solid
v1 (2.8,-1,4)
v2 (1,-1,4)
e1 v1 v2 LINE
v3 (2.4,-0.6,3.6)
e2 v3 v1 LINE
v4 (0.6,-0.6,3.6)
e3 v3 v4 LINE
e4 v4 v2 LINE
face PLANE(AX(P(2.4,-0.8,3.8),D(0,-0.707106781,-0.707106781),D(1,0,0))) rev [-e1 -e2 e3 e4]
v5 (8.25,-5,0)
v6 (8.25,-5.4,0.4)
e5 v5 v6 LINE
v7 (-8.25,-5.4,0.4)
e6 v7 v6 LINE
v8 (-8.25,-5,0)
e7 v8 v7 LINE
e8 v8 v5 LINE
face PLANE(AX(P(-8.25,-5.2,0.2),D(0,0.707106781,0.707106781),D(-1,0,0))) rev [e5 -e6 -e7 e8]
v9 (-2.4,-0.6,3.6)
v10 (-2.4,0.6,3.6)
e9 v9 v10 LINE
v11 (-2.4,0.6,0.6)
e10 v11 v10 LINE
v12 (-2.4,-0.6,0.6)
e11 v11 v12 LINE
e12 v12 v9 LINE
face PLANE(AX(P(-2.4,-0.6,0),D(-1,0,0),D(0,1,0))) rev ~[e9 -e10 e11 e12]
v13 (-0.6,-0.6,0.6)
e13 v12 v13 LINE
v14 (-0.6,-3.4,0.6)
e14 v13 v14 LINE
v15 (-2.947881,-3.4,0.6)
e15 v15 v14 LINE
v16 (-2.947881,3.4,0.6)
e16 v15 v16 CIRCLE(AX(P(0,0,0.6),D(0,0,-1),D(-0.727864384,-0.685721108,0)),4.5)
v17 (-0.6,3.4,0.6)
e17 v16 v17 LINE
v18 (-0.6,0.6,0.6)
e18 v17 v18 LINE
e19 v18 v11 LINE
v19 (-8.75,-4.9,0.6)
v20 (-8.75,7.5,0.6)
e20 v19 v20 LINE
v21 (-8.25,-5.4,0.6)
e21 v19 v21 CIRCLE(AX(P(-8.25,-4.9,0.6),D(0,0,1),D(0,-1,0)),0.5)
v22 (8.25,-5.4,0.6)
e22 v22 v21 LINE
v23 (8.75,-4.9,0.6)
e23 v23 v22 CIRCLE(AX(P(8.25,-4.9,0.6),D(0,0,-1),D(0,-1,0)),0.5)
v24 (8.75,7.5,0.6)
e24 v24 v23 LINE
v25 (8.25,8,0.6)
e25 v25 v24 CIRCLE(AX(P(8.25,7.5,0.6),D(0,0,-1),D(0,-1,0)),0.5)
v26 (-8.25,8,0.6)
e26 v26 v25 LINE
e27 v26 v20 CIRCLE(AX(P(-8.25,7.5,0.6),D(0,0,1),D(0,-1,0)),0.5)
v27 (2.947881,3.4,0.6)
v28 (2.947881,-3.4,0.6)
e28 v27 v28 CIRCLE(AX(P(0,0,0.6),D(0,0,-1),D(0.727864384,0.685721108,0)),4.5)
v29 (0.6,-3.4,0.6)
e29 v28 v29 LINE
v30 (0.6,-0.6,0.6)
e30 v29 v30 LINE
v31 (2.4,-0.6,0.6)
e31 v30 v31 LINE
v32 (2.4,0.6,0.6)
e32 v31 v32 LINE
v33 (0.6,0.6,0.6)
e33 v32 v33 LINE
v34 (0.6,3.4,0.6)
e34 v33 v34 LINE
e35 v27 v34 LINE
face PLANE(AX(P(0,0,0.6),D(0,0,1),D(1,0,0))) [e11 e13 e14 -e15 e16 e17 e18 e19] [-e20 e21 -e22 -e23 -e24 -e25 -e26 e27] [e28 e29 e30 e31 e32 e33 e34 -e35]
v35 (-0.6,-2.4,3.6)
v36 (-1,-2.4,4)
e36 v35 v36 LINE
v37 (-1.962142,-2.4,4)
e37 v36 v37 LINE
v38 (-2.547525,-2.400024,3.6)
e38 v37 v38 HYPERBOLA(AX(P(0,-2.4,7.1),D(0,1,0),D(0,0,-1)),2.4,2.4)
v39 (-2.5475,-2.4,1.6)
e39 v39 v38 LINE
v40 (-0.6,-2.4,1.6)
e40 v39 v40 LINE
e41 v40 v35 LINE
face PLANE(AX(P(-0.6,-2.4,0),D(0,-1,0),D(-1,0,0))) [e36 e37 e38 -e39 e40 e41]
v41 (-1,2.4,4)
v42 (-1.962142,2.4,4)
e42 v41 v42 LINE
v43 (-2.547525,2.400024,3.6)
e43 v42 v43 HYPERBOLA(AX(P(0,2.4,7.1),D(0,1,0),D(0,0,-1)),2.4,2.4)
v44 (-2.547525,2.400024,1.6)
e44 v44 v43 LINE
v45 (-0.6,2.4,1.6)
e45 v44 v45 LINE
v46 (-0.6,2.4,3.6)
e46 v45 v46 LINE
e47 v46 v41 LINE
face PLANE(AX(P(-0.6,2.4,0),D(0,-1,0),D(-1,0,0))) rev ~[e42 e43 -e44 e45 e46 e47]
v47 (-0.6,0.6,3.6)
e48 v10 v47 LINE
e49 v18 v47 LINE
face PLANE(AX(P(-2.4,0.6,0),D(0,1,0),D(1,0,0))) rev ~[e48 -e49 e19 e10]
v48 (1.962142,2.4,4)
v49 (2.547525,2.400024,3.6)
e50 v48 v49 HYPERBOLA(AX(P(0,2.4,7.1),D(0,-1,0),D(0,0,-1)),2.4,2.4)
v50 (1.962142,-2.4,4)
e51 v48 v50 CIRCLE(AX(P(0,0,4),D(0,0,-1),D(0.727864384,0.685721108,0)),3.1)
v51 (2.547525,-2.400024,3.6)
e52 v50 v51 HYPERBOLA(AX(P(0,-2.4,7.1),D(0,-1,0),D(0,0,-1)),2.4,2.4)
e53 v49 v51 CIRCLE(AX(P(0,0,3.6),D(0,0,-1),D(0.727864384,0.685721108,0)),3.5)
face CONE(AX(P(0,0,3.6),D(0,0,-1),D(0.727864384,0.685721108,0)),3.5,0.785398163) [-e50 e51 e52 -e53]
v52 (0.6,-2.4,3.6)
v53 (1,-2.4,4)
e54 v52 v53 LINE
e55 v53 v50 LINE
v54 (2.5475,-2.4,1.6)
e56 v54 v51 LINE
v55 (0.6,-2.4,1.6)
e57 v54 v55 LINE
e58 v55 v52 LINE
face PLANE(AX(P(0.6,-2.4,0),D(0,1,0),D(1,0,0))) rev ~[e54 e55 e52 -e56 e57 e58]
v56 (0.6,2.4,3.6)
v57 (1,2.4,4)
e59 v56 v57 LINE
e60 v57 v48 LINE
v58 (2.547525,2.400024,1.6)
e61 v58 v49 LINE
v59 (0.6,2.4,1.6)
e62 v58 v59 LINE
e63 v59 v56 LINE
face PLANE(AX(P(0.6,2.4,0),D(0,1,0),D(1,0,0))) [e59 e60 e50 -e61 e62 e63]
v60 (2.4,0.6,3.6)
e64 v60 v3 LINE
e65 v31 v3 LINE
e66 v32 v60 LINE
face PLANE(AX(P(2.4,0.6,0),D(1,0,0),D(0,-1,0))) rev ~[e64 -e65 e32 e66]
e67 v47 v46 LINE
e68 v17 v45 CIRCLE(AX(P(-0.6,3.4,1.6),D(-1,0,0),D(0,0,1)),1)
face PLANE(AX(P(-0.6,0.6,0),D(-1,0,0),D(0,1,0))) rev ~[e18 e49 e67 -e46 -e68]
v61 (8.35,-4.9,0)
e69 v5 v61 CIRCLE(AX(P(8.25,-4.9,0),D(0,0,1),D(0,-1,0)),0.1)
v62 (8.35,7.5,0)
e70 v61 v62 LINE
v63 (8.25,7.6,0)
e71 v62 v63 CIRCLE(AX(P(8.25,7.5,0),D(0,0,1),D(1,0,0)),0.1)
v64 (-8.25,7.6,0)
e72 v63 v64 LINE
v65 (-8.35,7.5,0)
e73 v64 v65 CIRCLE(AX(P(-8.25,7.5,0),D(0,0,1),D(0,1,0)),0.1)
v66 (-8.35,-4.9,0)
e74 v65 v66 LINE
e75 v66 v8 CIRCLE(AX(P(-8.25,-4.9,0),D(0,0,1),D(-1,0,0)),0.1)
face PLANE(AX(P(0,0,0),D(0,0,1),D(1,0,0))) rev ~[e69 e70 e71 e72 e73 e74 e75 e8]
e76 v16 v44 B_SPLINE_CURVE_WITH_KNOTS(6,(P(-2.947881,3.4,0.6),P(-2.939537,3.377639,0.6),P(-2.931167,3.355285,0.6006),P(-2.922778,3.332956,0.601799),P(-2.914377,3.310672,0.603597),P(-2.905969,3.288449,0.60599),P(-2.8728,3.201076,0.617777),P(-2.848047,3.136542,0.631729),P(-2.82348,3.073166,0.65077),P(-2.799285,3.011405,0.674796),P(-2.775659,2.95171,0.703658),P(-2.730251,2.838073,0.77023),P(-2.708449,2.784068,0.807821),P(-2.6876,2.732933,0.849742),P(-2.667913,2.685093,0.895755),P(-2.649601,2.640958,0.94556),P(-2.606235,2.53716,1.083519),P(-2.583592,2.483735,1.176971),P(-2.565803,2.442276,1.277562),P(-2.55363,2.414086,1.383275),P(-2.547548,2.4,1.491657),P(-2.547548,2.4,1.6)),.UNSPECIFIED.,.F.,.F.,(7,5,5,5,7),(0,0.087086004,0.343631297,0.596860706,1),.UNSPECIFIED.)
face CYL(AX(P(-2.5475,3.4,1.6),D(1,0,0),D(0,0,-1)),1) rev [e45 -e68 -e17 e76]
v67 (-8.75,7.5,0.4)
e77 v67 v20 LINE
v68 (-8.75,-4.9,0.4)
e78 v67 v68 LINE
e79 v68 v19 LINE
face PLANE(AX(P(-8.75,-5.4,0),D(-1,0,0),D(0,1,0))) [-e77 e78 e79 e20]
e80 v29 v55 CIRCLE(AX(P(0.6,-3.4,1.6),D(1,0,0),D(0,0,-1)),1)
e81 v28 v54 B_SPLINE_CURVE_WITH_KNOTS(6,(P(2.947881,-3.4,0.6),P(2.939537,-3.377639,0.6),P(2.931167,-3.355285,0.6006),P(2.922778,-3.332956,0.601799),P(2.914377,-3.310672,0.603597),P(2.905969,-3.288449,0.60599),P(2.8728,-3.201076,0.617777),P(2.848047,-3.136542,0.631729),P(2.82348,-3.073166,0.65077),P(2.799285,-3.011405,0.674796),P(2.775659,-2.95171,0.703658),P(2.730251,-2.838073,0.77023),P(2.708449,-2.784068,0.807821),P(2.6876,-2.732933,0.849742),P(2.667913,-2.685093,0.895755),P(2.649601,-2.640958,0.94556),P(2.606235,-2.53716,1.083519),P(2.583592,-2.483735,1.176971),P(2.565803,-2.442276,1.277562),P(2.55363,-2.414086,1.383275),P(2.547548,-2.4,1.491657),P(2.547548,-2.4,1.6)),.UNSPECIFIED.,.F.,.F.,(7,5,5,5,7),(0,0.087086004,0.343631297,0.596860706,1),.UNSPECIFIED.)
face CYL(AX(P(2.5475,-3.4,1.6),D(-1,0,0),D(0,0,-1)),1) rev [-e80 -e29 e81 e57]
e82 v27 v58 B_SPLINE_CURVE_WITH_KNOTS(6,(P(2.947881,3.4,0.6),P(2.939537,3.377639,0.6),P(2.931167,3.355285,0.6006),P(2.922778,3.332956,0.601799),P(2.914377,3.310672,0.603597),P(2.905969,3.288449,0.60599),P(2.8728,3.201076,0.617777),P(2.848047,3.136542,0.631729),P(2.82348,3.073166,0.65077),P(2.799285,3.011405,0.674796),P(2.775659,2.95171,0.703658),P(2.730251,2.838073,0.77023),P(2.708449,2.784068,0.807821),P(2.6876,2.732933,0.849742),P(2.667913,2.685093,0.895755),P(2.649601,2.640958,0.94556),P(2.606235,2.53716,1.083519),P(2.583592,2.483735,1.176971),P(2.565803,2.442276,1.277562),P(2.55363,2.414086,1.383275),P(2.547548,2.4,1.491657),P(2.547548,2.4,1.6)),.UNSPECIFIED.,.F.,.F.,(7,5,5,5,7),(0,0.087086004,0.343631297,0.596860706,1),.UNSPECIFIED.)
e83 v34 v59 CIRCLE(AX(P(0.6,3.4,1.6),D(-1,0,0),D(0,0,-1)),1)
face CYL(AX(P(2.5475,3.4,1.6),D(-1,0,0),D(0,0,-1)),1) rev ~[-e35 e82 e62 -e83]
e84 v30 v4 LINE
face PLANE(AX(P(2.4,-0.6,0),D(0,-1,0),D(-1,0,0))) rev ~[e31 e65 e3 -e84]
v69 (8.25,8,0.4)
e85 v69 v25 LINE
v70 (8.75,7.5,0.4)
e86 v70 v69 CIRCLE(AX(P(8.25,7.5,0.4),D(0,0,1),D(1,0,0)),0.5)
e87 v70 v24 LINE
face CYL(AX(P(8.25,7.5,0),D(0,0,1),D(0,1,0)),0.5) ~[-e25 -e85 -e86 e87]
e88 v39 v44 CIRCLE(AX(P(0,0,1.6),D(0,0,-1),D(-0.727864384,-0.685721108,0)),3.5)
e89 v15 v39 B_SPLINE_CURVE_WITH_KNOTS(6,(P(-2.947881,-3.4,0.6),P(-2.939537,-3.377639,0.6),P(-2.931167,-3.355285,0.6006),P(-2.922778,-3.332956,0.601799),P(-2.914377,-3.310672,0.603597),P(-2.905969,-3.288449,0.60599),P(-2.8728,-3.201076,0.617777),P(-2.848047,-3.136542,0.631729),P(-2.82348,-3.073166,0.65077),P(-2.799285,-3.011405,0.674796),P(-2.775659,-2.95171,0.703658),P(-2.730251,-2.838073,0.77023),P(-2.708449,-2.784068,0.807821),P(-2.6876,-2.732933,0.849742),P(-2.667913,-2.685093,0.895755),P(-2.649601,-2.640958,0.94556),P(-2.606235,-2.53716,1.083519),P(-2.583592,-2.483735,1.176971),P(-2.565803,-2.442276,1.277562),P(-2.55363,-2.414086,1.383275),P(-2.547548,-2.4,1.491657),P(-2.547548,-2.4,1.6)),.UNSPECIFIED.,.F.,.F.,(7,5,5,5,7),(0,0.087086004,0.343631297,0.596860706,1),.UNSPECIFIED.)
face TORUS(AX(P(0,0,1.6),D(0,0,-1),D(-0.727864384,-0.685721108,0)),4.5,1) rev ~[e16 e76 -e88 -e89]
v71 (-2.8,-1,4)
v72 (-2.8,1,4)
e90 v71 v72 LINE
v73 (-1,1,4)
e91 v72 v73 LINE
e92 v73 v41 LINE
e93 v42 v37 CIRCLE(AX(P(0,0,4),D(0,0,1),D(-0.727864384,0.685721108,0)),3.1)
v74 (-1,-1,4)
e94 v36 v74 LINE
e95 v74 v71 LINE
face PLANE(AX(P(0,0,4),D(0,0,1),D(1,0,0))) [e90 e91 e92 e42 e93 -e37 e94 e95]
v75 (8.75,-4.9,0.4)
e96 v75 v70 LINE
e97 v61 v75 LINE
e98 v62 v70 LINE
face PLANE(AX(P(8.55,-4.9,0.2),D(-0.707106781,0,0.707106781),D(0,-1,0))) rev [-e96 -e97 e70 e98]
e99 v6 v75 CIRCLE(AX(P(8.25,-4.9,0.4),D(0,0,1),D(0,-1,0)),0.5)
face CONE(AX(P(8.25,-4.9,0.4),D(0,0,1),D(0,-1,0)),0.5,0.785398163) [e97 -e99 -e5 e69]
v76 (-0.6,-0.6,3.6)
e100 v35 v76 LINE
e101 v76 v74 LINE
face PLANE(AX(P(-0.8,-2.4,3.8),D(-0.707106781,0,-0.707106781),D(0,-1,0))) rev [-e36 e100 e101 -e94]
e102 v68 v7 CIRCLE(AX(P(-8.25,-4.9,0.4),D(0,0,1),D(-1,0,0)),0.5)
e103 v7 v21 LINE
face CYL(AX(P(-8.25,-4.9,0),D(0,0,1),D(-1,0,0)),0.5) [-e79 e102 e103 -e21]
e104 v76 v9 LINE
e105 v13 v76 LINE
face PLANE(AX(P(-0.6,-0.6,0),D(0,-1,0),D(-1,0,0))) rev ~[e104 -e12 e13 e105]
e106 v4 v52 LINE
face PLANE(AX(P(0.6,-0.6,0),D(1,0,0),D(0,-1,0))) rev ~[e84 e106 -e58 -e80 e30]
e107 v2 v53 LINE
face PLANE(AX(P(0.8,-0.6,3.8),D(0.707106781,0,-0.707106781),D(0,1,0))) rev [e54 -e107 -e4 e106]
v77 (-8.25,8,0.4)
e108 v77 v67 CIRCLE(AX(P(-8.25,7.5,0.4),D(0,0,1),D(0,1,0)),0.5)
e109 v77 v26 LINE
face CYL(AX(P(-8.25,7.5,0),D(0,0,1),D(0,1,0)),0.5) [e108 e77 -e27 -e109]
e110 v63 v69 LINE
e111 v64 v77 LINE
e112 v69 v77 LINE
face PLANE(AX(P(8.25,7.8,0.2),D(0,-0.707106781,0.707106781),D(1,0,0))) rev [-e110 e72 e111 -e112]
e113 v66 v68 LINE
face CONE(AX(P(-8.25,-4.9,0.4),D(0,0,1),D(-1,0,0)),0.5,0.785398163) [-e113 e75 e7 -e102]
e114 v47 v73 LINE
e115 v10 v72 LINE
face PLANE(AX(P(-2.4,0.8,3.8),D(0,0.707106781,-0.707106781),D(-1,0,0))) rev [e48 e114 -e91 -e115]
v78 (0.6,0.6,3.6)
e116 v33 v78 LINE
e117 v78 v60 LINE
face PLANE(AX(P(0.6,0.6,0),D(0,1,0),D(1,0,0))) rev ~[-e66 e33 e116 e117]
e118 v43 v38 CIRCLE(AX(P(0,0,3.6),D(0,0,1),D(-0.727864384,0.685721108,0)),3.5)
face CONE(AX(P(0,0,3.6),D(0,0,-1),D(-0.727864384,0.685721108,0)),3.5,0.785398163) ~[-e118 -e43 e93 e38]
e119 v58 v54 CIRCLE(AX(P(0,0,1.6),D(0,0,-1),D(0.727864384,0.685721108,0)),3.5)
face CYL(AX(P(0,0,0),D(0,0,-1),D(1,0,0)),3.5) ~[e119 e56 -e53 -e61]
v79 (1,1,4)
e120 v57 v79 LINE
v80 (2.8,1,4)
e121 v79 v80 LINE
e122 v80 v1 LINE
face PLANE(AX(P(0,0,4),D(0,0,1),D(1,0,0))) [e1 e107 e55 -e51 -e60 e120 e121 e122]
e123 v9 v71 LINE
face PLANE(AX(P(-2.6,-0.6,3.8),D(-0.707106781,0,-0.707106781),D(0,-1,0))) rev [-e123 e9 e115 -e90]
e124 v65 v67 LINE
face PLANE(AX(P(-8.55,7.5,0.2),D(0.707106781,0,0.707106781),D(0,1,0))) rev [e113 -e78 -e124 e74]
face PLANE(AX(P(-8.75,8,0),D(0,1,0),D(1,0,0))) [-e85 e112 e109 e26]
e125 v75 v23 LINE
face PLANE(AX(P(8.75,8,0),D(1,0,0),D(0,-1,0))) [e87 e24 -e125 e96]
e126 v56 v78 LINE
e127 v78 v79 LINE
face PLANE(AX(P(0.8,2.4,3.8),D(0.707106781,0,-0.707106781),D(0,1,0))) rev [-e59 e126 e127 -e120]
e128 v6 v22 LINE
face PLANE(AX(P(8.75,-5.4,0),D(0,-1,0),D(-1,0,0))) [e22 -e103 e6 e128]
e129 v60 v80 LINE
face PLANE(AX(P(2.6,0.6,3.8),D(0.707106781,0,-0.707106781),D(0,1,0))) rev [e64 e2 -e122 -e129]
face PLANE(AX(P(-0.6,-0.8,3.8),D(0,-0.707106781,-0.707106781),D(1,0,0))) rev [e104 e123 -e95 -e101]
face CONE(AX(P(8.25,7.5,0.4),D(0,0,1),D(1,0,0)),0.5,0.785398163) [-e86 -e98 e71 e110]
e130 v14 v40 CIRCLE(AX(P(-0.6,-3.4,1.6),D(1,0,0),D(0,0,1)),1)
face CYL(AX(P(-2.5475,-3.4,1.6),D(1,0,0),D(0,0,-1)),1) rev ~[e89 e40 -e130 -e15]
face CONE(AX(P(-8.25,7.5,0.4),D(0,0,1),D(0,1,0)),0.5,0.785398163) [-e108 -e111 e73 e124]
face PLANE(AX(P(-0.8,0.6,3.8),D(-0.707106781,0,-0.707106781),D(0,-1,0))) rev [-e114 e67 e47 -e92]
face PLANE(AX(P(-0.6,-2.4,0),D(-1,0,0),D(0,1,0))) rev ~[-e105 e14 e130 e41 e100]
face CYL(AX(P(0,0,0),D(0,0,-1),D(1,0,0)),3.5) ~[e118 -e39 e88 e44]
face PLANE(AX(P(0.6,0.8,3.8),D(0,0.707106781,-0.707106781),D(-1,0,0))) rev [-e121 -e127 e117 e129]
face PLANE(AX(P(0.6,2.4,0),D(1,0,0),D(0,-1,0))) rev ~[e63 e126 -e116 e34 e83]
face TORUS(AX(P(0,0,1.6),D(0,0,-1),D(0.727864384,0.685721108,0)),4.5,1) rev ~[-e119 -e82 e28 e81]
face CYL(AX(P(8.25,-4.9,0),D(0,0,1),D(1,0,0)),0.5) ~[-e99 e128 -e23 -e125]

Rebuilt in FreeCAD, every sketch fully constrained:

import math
import FreeCAD as App
import Part
import Sketcher
Q = App.Units.Quantity


def edges_at(feature, points):
    """Names of the edges that pass closest to the given points."""
    edges = feature.Shape.Edges
    near = lambda p: min(range(len(edges)), key=lambda i: edges[i].distToShape(Part.Vertex(*p))[0])
    return sorted({f"Edge{near(p) + 1}" for p in points})

doc = App.newDocument("Part")
body = doc.addObject("PartDesign::Body", "Body")

# Sketch on XY plane
sketch1 = body.newObject("Sketcher::SketchObject", "Sketch")
sketch1.AttachmentSupport = (doc.getObject("XY_Plane"), [""])
sketch1.MapMode = "FlatFace"
sketch1.addGeometry(Part.LineSegment(App.Vector(8.75, 8, 0), App.Vector(-8.75, 8, 0)), False)
sketch1.addGeometry(Part.LineSegment(App.Vector(-8.75, 8, 0), App.Vector(-8.75, -5.4, 0)), False)
sketch1.addGeometry(Part.LineSegment(App.Vector(-8.75, -5.4, 0), App.Vector(8.75, -5.4, 0)), False)
sketch1.addGeometry(Part.LineSegment(App.Vector(8.75, -5.4, 0), App.Vector(8.75, 8, 0)), False)
sketch1.addConstraint(Sketcher.Constraint("Coincident", 0, 2, 1, 1))
sketch1.addConstraint(Sketcher.Constraint("Coincident", 1, 2, 2, 1))
sketch1.addConstraint(Sketcher.Constraint("Coincident", 2, 2, 3, 1))
sketch1.addConstraint(Sketcher.Constraint("Coincident", 3, 2, 0, 1))
sketch1.addConstraint(Sketcher.Constraint("Horizontal", 0))
sketch1.addConstraint(Sketcher.Constraint("Vertical", 1))
sketch1.addConstraint(Sketcher.Constraint("Horizontal", 2))
sketch1.addConstraint(Sketcher.Constraint("Vertical", 3))
sketch1.addConstraint(Sketcher.Constraint("DistanceX", 0, 2, 0, 1, Q("17.5 mm")))
sketch1.addConstraint(Sketcher.Constraint("DistanceY", 1, 2, 1, 1, Q("13.4 mm")))
sketch1.addConstraint(Sketcher.Constraint("DistanceY", -1, 1, 0, 2, Q("8 mm")))
sketch1.addConstraint(Sketcher.Constraint("DistanceX", 0, 2, -1, 1, Q("8.75 mm")))
pad1 = body.newObject("PartDesign::Pad", "Pad")
pad1.Profile = sketch1
pad1.Length = 0.6

# Sketch on XY plane
sketch2 = body.newObject("Sketcher::SketchObject", "Sketch001")
sketch2.AttachmentSupport = (doc.getObject("XY_Plane"), [""])
sketch2.MapMode = "FlatFace"
sketch2.addGeometry(Part.ArcOfCircle(Part.Circle(App.Vector(0, 0, 0), App.Vector(0, 0, 1), 3.5), math.radians(-43.292345), math.radians(43.292345)), False)
sketch2.addGeometry(Part.LineSegment(App.Vector(2.5475, 2.4, 0), App.Vector(0.6, 2.4, 0)), False)
sketch2.addGeometry(Part.LineSegment(App.Vector(0.6, 2.4, 0), App.Vector(0.6, 0.6, 0)), False)
sketch2.addGeometry(Part.LineSegment(App.Vector(0.6, 0.6, 0), App.Vector(2.4, 0.6, 0)), False)
sketch2.addGeometry(Part.LineSegment(App.Vector(2.4, 0.6, 0), App.Vector(2.4, -0.6, 0)), False)
sketch2.addGeometry(Part.LineSegment(App.Vector(2.4, -0.6, 0), App.Vector(0.6, -0.6, 0)), False)
sketch2.addGeometry(Part.LineSegment(App.Vector(0.6, -0.6, 0), App.Vector(0.6, -2.4, 0)), False)
sketch2.addGeometry(Part.LineSegment(App.Vector(0.6, -2.4, 0), App.Vector(2.5475, -2.4, 0)), False)
sketch2.addGeometry(Part.LineSegment(App.Vector(-0.6, 2.4, 0), App.Vector(-2.5475, 2.4, 0)), False)
sketch2.addGeometry(Part.ArcOfCircle(Part.Circle(App.Vector(0, 0, 0), App.Vector(0, 0, 1), 3.5), math.radians(136.707655), math.radians(223.292345)), False)
sketch2.addGeometry(Part.LineSegment(App.Vector(-2.5475, -2.4, 0), App.Vector(-0.6, -2.4, 0)), False)
sketch2.addGeometry(Part.LineSegment(App.Vector(-0.6, -2.4, 0), App.Vector(-0.6, -0.6, 0)), False)
sketch2.addGeometry(Part.LineSegment(App.Vector(-0.6, -0.6, 0), App.Vector(-2.4, -0.6, 0)), False)
sketch2.addGeometry(Part.LineSegment(App.Vector(-2.4, -0.6, 0), App.Vector(-2.4, 0.6, 0)), False)
sketch2.addGeometry(Part.LineSegment(App.Vector(-2.4, 0.6, 0), App.Vector(-0.6, 0.6, 0)), False)
sketch2.addGeometry(Part.LineSegment(App.Vector(-0.6, 0.6, 0), App.Vector(-0.6, 2.4, 0)), False)
sketch2.addConstraint(Sketcher.Constraint("Coincident", 0, 2, 1, 1))
sketch2.addConstraint(Sketcher.Constraint("Coincident", 1, 2, 2, 1))
sketch2.addConstraint(Sketcher.Constraint("Coincident", 2, 2, 3, 1))
sketch2.addConstraint(Sketcher.Constraint("Coincident", 3, 2, 4, 1))
sketch2.addConstraint(Sketcher.Constraint("Coincident", 4, 2, 5, 1))
sketch2.addConstraint(Sketcher.Constraint("Coincident", 5, 2, 6, 1))
sketch2.addConstraint(Sketcher.Constraint("Coincident", 6, 2, 7, 1))
sketch2.addConstraint(Sketcher.Constraint("Coincident", 7, 2, 0, 1))
sketch2.addConstraint(Sketcher.Constraint("Coincident", 8, 2, 9, 1))
sketch2.addConstraint(Sketcher.Constraint("Coincident", 9, 2, 10, 1))
sketch2.addConstraint(Sketcher.Constraint("Coincident", 10, 2, 11, 1))
sketch2.addConstraint(Sketcher.Constraint("Coincident", 11, 2, 12, 1))
sketch2.addConstraint(Sketcher.Constraint("Coincident", 12, 2, 13, 1))
sketch2.addConstraint(Sketcher.Constraint("Coincident", 13, 2, 14, 1))
sketch2.addConstraint(Sketcher.Constraint("Coincident", 14, 2, 15, 1))
sketch2.addConstraint(Sketcher.Constraint("Coincident", 15, 2, 8, 1))
sketch2.addConstraint(Sketcher.Constraint("Horizontal", 1))
sketch2.addConstraint(Sketcher.Constraint("Vertical", 2))
sketch2.addConstraint(Sketcher.Constraint("Horizontal", 3))
sketch2.addConstraint(Sketcher.Constraint("Vertical", 4))
sketch2.addConstraint(Sketcher.Constraint("Horizontal", 5))
sketch2.addConstraint(Sketcher.Constraint("Vertical", 6))
sketch2.addConstraint(Sketcher.Constraint("Horizontal", 7))
sketch2.addConstraint(Sketcher.Constraint("Horizontal", 8))
sketch2.addConstraint(Sketcher.Constraint("Horizontal", 10))
sketch2.addConstraint(Sketcher.Constraint("Vertical", 11))
sketch2.addConstraint(Sketcher.Constraint("Horizontal", 12))
sketch2.addConstraint(Sketcher.Constraint("Vertical", 13))
sketch2.addConstraint(Sketcher.Constraint("Horizontal", 14))
sketch2.addConstraint(Sketcher.Constraint("Vertical", 15))
sketch2.addConstraint(Sketcher.Constraint("Coincident", 0, 3, -1, 1))
sketch2.addConstraint(Sketcher.Constraint("Coincident", 9, 3, -1, 1))
sketch2.addConstraint(Sketcher.Constraint("Equal", 0, 9))
sketch2.addConstraint(Sketcher.Constraint("Symmetric", 1, 2, 10, 2, -1, 1))
sketch2.addConstraint(Sketcher.Constraint("Symmetric", 3, 2, 12, 2, -1, 1))
sketch2.addConstraint(Sketcher.Constraint("Symmetric", 5, 2, 14, 2, -1, 1))
sketch2.addConstraint(Sketcher.Constraint("Symmetric", 6, 2, 10, 2, -2))
sketch2.addConstraint(Sketcher.Constraint("Horizontal", 1, 2, 8, 2))
sketch2.addConstraint(Sketcher.Constraint("Horizontal", 5, 2, 11, 2))
sketch2.addConstraint(Sketcher.Constraint("Equal", 14, 2))
sketch2.addConstraint(Sketcher.Constraint("Radius", 0, Q("3.5 mm")))
sketch2.addConstraint(Sketcher.Constraint("DistanceY", 4, 2, 4, 1, Q("1.2 mm")))
sketch2.addConstraint(Sketcher.Constraint("DistanceX", 10, 2, 6, 2, Q("1.2 mm")))
sketch2.addConstraint(Sketcher.Constraint("DistanceX", 3, 1, 3, 2, Q("1.8 mm")))
pad2 = body.newObject("PartDesign::Pad", "Pad001")
pad2.Profile = sketch2
pad2.Length = 4
doc.recompute()

fillet = body.newObject("PartDesign::Fillet", "Fillet")
fillet.Base = (pad2, edges_at(pad2, [
    (-1.574, -2.4, 0.6),
    (-3.5, 0, 0.6),
    (1.574, -2.4, 0.6),
    (3.5, 0, 0.6),
    (1.574, 2.4, 0.6),
    (-1.574, 2.4, 0.6),
]))
fillet.Radius = 1
doc.recompute()

fillet2 = body.newObject("PartDesign::Fillet", "Fillet001")
fillet2.Base = (fillet, edges_at(fillet, [
    (8.75, 8, 0.3),
    (-8.75, 8, 0.3),
    (8.75, -5.4, 0.3),
    (-8.75, -5.4, 0.3),
]))
fillet2.Radius = 0.5
doc.recompute()

chamfer = body.newObject("PartDesign::Chamfer", "Chamfer")
chamfer.Base = (fillet2, edges_at(fillet2, [
    (-8.604, 7.854, 0),
    (0, 8, 0),
    (8.604, 7.854, 0),
    (8.75, 1.3, 0),
    (8.604, -5.254, 0),
    (0, -5.4, 0),
    (-8.604, -5.254, 0),
    (-8.75, 1.3, 0),
    (-0.6, 1.5, 4),
    (-1.5, 0.6, 4),
    (-2.4, 0, 4),
    (-1.5, -0.6, 4),
    (-0.6, -1.5, 4),
    (0.6, -1.5, 4),
    (1.5, -0.6, 4),
    (2.4, 0, 4),
    (1.5, 0.6, 4),
    (0.6, 1.5, 4),
    (3.5, 0, 4),
    (-3.5, 0, 4),
]))
chamfer.Size = 0.4

doc.recompute()
